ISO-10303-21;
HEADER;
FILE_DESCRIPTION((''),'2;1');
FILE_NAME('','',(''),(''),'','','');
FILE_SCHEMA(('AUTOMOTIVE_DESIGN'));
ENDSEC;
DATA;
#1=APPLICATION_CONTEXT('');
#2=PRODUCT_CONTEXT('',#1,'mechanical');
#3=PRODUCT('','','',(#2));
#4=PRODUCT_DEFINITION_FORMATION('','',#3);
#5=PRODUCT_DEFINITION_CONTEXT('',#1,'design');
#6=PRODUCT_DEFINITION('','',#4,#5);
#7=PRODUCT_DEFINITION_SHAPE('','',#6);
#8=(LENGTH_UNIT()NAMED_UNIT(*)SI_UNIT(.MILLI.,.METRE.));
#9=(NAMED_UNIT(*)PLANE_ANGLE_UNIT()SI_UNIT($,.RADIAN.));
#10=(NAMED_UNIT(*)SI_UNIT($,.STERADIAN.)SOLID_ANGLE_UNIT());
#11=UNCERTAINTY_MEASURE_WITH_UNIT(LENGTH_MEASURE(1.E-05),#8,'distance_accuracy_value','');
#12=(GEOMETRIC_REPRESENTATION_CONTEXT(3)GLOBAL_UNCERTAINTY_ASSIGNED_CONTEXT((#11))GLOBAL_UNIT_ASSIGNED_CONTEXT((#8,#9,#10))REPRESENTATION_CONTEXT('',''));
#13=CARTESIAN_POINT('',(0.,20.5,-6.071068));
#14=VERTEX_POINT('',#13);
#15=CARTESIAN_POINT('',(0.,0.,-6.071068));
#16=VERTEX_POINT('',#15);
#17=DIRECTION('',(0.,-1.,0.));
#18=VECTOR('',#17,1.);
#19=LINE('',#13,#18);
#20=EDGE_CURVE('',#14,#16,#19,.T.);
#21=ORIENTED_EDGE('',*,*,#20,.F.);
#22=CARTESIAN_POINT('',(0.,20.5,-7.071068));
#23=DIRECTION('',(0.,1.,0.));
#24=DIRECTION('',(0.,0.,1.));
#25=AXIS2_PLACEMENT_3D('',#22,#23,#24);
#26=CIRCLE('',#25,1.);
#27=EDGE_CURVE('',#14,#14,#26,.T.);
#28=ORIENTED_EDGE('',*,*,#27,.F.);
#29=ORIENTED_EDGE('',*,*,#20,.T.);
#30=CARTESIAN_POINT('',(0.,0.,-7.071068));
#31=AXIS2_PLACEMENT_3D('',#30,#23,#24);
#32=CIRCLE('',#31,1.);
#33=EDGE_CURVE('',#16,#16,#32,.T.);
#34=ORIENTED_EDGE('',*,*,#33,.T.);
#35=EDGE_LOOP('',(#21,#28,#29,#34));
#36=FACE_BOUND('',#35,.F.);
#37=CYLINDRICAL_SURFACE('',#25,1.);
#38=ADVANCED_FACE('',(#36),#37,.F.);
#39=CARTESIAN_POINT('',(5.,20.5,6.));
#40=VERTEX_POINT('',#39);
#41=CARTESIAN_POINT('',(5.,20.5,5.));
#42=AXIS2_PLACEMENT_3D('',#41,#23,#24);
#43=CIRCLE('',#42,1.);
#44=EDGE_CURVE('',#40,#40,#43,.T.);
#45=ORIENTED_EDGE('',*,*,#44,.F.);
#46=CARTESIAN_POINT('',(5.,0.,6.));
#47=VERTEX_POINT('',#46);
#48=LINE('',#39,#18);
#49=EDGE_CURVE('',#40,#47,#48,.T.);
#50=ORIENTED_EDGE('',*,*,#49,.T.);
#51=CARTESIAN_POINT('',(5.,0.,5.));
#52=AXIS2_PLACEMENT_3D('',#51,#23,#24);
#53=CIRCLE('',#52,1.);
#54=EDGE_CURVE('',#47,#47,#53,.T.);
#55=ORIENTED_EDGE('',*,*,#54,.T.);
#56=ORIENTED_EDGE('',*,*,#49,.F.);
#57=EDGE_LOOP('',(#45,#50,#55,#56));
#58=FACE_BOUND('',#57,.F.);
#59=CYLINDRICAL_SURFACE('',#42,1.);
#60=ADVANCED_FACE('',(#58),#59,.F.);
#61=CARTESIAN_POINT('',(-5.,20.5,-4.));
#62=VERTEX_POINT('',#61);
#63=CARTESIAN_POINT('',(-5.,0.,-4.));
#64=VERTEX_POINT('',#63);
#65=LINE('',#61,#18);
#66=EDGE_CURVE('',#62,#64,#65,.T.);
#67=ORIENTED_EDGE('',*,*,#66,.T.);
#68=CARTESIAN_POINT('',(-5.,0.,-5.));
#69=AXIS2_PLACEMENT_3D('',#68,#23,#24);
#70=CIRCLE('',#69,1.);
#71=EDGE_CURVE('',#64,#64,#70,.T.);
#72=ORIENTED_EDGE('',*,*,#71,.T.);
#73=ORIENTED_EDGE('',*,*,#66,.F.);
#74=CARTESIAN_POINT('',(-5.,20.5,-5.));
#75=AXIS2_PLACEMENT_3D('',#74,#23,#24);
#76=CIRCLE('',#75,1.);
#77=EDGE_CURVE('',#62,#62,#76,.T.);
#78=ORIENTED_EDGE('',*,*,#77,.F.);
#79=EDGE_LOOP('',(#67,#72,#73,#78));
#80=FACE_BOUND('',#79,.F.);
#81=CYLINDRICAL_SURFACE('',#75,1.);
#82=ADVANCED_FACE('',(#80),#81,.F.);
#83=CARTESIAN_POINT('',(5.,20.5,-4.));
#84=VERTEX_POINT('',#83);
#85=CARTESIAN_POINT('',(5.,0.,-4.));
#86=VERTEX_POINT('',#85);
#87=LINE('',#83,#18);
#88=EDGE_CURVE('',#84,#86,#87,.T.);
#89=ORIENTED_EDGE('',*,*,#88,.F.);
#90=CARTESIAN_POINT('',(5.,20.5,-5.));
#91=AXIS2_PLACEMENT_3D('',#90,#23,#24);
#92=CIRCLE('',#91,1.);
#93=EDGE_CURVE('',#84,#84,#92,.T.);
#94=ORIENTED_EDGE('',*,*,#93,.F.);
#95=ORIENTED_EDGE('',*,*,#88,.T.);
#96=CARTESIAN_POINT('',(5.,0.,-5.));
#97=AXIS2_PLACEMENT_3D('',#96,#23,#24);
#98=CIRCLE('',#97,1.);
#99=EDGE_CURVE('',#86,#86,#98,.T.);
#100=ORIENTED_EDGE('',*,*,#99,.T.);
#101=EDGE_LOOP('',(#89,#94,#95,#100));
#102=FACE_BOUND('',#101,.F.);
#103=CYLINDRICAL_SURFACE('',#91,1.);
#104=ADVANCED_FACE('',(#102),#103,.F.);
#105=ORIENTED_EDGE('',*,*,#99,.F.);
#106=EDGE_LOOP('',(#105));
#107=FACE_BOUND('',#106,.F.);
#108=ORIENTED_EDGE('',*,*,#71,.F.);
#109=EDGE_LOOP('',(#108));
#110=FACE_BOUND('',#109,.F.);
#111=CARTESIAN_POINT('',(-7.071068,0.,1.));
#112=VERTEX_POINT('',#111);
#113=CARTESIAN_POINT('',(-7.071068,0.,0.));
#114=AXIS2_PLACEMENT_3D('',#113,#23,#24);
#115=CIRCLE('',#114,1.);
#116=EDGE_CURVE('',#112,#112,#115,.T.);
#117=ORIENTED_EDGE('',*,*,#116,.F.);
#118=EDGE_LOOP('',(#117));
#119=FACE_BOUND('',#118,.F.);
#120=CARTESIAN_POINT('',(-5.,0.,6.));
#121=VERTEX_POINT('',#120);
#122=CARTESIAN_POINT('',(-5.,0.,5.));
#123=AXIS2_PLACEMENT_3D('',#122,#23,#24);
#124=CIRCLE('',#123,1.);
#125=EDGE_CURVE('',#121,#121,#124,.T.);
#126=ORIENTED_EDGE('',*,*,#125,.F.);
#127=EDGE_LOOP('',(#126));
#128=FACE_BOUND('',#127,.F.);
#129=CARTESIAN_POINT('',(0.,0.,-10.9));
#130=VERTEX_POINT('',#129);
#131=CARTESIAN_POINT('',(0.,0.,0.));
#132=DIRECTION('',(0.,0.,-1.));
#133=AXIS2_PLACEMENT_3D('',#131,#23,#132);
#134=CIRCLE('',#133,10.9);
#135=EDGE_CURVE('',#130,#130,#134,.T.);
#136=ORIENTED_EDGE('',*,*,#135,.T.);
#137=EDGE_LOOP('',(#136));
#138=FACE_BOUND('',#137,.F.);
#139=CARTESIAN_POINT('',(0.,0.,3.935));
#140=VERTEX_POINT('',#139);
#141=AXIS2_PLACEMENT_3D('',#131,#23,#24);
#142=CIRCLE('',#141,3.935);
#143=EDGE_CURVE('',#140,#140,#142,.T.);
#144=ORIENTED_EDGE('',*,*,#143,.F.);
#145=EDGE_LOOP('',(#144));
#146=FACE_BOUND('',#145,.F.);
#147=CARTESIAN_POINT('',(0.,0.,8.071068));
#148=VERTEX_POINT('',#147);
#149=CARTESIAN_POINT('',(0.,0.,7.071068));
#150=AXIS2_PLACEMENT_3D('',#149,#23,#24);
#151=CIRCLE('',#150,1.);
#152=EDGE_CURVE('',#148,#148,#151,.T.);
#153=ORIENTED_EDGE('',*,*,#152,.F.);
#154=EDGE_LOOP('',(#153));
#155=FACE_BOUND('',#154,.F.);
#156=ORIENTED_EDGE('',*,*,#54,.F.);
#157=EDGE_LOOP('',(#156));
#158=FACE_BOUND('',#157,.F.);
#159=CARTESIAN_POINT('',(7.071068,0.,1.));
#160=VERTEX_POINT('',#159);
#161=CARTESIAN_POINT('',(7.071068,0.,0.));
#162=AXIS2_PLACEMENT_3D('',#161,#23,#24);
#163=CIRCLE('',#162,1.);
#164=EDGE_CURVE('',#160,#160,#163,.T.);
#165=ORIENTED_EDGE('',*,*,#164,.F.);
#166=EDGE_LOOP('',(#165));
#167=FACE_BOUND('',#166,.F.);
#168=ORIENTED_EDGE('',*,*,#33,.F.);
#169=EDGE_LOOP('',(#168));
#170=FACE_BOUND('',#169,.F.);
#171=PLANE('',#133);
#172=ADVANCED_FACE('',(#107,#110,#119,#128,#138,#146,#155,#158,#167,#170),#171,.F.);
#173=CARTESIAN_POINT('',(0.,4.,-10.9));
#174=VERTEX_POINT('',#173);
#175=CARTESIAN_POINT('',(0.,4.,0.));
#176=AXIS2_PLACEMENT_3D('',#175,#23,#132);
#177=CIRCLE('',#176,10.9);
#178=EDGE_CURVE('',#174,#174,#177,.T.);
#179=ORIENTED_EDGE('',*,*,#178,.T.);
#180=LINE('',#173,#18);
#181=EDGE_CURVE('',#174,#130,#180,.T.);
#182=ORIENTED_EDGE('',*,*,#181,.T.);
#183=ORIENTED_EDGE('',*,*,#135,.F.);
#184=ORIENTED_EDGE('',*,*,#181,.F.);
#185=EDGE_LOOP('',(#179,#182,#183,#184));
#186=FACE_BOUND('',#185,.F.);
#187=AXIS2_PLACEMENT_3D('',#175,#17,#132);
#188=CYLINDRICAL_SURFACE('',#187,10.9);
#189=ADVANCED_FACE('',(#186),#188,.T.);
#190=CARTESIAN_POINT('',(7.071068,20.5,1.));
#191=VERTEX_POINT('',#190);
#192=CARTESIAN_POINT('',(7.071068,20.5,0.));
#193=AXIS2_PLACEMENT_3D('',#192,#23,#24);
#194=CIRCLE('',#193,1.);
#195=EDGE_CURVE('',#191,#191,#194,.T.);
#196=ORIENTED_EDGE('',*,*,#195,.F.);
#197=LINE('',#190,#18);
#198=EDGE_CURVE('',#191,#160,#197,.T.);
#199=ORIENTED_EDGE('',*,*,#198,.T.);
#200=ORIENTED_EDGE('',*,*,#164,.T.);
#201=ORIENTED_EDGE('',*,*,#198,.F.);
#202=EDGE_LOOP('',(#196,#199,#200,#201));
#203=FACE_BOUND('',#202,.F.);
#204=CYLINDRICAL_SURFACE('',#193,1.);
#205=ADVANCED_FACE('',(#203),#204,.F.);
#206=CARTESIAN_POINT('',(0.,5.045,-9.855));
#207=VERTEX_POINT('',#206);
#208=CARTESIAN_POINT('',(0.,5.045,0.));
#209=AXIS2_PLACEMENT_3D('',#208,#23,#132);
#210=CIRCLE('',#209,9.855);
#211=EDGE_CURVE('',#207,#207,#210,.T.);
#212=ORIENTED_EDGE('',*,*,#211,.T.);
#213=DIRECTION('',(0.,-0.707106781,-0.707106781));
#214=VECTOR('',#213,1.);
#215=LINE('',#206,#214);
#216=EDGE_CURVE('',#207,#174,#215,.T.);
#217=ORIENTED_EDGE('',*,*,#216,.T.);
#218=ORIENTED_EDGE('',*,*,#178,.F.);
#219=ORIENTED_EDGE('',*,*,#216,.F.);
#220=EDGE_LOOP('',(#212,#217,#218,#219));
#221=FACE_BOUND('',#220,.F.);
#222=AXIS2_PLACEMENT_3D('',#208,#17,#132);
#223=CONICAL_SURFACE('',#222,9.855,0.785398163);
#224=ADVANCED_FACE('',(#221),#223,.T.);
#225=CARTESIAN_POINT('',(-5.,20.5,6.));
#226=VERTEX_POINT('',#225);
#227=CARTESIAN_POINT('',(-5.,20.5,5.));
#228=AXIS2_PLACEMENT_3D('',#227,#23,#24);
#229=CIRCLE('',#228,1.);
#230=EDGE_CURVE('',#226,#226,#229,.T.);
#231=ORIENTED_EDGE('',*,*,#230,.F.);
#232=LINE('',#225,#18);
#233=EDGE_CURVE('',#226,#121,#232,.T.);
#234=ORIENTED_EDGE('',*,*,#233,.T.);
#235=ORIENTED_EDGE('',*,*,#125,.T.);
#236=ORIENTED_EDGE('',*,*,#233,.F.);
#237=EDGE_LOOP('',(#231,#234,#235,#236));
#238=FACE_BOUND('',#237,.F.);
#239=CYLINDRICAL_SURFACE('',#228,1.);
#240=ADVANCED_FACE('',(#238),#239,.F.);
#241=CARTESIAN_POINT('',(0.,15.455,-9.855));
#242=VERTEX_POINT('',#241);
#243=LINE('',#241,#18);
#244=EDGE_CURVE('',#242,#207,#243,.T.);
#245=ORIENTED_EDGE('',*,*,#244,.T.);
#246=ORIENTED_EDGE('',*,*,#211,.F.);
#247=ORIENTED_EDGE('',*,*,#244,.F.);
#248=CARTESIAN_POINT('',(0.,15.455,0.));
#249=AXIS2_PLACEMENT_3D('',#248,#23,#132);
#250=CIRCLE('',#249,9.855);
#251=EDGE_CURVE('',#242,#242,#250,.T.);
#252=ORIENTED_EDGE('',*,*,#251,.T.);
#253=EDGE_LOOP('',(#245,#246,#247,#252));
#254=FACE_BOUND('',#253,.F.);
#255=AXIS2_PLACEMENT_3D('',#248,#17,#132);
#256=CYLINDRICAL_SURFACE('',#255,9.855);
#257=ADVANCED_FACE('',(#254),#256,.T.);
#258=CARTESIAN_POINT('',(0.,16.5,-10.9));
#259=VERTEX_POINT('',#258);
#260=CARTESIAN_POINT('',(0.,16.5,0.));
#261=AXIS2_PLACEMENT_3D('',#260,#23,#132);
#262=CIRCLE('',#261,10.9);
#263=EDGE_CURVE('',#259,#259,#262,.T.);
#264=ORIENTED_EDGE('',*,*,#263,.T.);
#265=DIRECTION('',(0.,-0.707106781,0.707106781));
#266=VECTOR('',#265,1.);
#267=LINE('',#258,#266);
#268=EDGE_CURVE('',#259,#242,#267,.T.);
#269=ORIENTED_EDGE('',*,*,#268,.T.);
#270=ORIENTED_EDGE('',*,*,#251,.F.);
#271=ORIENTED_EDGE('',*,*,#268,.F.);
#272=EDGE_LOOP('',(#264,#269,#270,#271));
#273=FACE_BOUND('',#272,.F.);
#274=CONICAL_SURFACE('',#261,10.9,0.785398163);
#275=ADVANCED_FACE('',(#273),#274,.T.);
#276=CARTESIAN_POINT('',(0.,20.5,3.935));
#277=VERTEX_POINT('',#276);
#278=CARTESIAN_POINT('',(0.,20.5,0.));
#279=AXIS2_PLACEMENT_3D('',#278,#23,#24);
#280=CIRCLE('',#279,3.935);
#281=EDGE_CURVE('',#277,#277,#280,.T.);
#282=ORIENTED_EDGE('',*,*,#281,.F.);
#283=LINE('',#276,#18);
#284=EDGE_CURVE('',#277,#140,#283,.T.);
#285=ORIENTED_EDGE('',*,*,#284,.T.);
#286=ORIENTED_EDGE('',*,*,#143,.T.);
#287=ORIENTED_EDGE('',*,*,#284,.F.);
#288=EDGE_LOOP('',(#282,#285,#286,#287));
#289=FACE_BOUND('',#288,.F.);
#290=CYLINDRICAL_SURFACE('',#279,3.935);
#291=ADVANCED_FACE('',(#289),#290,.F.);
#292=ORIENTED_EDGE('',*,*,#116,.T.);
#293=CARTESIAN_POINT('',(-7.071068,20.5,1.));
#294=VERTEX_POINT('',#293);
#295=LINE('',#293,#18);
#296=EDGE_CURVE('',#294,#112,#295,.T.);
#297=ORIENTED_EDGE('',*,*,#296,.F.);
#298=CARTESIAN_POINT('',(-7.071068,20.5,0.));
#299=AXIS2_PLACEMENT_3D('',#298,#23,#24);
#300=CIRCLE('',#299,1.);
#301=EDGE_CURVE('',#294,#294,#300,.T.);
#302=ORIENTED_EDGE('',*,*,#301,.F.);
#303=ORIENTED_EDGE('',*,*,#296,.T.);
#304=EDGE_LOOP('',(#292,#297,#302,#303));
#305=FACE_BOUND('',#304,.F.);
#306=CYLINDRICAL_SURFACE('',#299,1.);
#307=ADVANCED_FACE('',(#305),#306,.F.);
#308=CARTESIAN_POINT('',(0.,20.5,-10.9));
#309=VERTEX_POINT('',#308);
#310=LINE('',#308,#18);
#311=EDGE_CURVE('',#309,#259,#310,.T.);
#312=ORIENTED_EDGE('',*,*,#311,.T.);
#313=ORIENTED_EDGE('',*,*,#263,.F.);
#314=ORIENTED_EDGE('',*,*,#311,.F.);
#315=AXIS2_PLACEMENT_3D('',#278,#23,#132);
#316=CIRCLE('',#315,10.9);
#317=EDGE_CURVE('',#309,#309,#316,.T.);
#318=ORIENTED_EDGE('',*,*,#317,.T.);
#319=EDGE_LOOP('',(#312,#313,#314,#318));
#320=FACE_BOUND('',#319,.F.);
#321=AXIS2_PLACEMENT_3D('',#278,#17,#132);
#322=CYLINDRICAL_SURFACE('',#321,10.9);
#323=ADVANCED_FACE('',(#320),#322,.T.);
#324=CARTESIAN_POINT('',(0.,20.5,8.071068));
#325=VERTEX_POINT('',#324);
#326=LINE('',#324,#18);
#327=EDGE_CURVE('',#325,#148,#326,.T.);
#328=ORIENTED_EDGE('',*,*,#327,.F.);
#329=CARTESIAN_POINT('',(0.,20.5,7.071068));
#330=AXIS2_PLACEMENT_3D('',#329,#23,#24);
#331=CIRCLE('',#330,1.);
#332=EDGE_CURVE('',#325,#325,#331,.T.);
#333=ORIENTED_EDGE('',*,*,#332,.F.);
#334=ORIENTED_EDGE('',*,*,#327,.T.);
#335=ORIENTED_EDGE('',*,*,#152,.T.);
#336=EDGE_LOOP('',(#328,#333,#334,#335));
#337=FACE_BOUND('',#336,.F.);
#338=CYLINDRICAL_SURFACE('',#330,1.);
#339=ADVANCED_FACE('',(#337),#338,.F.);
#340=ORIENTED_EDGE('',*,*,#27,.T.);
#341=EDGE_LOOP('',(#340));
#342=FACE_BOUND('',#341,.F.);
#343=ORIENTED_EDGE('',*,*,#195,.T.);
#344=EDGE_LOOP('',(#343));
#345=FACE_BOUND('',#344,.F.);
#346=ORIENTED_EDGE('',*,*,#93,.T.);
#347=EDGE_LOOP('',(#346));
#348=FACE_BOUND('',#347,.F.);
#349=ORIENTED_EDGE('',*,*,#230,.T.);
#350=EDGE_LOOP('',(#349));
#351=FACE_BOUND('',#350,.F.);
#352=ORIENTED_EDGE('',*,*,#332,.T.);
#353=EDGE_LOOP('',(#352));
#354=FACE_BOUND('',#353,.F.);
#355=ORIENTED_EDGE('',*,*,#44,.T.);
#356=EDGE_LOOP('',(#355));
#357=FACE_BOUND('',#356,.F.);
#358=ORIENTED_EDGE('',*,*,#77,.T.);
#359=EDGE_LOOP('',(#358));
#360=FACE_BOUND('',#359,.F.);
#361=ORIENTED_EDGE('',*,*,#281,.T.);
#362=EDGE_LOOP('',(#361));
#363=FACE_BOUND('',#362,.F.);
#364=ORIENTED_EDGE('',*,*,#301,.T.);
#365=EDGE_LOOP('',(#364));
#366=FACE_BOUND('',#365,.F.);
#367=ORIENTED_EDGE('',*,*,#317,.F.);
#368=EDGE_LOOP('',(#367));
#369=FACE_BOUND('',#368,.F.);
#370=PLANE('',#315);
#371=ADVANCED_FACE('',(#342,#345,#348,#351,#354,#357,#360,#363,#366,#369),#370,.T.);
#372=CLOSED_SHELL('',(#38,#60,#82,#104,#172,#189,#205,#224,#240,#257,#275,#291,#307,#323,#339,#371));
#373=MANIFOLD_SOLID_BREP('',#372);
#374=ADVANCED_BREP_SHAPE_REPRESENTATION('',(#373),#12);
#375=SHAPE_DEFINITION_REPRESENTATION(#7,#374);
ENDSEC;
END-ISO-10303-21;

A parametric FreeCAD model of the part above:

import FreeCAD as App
import Part
import Sketcher


def add_polygon(sketch, points):
    """Adds a closed chain of lines whose ends are joined by coincident constraints."""
    first, n = sketch.GeometryCount, len(points)
    for a, b in zip(points, points[1:] + points[:1]):
        sketch.addGeometry(Part.LineSegment(App.Vector(*a, 0), App.Vector(*b, 0)), False)
    for i in range(n):
        sketch.addConstraint(Sketcher.Constraint("Coincident", first + i, 2, first + (i + 1) % n, 1))

doc = App.newDocument("Part")
body = doc.addObject("PartDesign::Body", "Body")

sketch1 = body.newObject("Sketcher::SketchObject", "Sketch")
sketch1.AttachmentSupport = (doc.getObject("XY_Plane"), [""])
sketch1.MapMode = "FlatFace"
add_polygon(sketch1, [(-3, 0), (-3, 20.5), (-10.9, 20.5), (-10.9, 16.5), (-9.9, 15.5), (-9.9, 5), (-10.9, 4), (-10.9, 0)])
sketch1.addConstraint(Sketcher.Constraint("Vertical", 0))
sketch1.addConstraint(Sketcher.Constraint("Horizontal", 1))
sketch1.addConstraint(Sketcher.Constraint("Vertical", 2))
sketch1.addConstraint(Sketcher.Constraint("Vertical", 4))
sketch1.addConstraint(Sketcher.Constraint("Vertical", 6))
sketch1.addConstraint(Sketcher.Constraint("Horizontal", 7))
sketch1.addConstraint(Sketcher.Constraint("PointOnObject", 6, 2, -1))
sketch1.addConstraint(Sketcher.Constraint("Perpendicular", 3, 5))
sketch1.addConstraint(Sketcher.Constraint("Vertical", 2, 2, 5, 2))
sketch1.addConstraint(Sketcher.Constraint("Equal", 2, 6))
sketch1.addConstraint(Sketcher.Constraint("Equal", 3, 5))
sketch1.addConstraint(Sketcher.Constraint("DistanceY", 2, 2, 2, 1, 4.0))
sketch1.addConstraint(Sketcher.Constraint("DistanceX", 1, 2, 1, 1, 7.9))
sketch1.addConstraint(Sketcher.Constraint("DistanceY", 0, 1, 0, 2, 20.5))
sketch1.addConstraint(Sketcher.Constraint("DistanceX", 0, 2, -1, 1, 3.0))
sketch1.addConstraint(Sketcher.Constraint("DistanceY", 4, 2, 4, 1, 10.41))
revolution = body.newObject("PartDesign::Revolution", "Revolution")
revolution.Profile = sketch1
revolution.ReferenceAxis = (sketch1, ["V_Axis"])
revolution.Angle = 360

sketch2 = body.newObject("Sketcher::SketchObject", "Sketch001")
sketch2.AttachmentSupport = (doc.getObject("XZ_Plane"), [""])
sketch2.MapMode = "FlatFace"
sketch2.AttachmentOffset = App.Placement(App.Vector(0, 0, -20.5), App.Rotation())
sketch2.addGeometry(Part.Circle(App.Vector(0, 0, 0), App.Vector(0, 0, 1), 3.9), False)
sketch2.addGeometry(Part.Circle(App.Vector(-5, -5, 0), App.Vector(0, 0, 1), 1), False)
sketch2.addGeometry(Part.Circle(App.Vector(5, -5, 0), App.Vector(0, 0, 1), 1), False)
sketch2.addGeometry(Part.Circle(App.Vector(5, 5, 0), App.Vector(0, 0, 1), 1), False)
sketch2.addGeometry(Part.Circle(App.Vector(-5, 5, 0), App.Vector(0, 0, 1), 1), False)
sketch2.addGeometry(Part.Circle(App.Vector(-7.1, 0, 0), App.Vector(0, 0, 1), 1), False)
sketch2.addGeometry(Part.Circle(App.Vector(0, -7.1, 0), App.Vector(0, 0, 1), 1), False)
sketch2.addGeometry(Part.Circle(App.Vector(7.1, 0, 0), App.Vector(0, 0, 1), 1), False)
sketch2.addGeometry(Part.Circle(App.Vector(0, 7.1, 0), App.Vector(0, 0, 1), 1), False)
sketch2.addConstraint(Sketcher.Constraint("Coincident", 0, 3, -1, 1))
sketch2.addConstraint(Sketcher.Constraint("Equal", 1, 2))
sketch2.addConstraint(Sketcher.Constraint("Equal", 2, 3))
sketch2.addConstraint(Sketcher.Constraint("Equal", 3, 4))
sketch2.addConstraint(Sketcher.Constraint("Equal", 4, 5))
sketch2.addConstraint(Sketcher.Constraint("Equal", 5, 6))
sketch2.addConstraint(Sketcher.Constraint("Equal", 6, 7))
sketch2.addConstraint(Sketcher.Constraint("Equal", 7, 8))
sketch2.addConstraint(Sketcher.Constraint("Symmetric", 1, 3, 3, 3, -1, 1))
sketch2.addConstraint(Sketcher.Constraint("Symmetric", 2, 3, 4, 3, -1, 1))
sketch2.addConstraint(Sketcher.Constraint("Symmetric", 5, 3, 7, 3, -1, 1))
sketch2.addConstraint(Sketcher.Constraint("Symmetric", 6, 3, 8, 3, -1, 1))
sketch2.addConstraint(Sketcher.Constraint("Symmetric", 1, 3, 2, 3, -2))
sketch2.addConstraint(Sketcher.Constraint("PointOnObject", 5, 3, -1))
sketch2.addConstraint(Sketcher.Constraint("PointOnObject", 6, 3, -2))
sketch2.addConstraint(Sketcher.Constraint("Diameter", 1, 2.0))
sketch2.addConstraint(Sketcher.Constraint("Diameter", 0, 7.87))
sketch2.addConstraint(Sketcher.Constraint("DistanceX", 1, 3, -1, 1, 5.0))
sketch2.addConstraint(Sketcher.Constraint("DistanceY", 1, 3, -1, 1, 5.0))
sketch2.addConstraint(Sketcher.Constraint("DistanceX", 5, 3, -1, 1, 7.071068))
sketch2.addConstraint(Sketcher.Constraint("DistanceY", 6, 3, -1, 1, 7.071068))
pocket1 = body.newObject("PartDesign::Pocket", "Pocket")
pocket1.Profile = sketch2
pocket1.Length = 45
pocket1.Reversed = True

doc.recompute()
